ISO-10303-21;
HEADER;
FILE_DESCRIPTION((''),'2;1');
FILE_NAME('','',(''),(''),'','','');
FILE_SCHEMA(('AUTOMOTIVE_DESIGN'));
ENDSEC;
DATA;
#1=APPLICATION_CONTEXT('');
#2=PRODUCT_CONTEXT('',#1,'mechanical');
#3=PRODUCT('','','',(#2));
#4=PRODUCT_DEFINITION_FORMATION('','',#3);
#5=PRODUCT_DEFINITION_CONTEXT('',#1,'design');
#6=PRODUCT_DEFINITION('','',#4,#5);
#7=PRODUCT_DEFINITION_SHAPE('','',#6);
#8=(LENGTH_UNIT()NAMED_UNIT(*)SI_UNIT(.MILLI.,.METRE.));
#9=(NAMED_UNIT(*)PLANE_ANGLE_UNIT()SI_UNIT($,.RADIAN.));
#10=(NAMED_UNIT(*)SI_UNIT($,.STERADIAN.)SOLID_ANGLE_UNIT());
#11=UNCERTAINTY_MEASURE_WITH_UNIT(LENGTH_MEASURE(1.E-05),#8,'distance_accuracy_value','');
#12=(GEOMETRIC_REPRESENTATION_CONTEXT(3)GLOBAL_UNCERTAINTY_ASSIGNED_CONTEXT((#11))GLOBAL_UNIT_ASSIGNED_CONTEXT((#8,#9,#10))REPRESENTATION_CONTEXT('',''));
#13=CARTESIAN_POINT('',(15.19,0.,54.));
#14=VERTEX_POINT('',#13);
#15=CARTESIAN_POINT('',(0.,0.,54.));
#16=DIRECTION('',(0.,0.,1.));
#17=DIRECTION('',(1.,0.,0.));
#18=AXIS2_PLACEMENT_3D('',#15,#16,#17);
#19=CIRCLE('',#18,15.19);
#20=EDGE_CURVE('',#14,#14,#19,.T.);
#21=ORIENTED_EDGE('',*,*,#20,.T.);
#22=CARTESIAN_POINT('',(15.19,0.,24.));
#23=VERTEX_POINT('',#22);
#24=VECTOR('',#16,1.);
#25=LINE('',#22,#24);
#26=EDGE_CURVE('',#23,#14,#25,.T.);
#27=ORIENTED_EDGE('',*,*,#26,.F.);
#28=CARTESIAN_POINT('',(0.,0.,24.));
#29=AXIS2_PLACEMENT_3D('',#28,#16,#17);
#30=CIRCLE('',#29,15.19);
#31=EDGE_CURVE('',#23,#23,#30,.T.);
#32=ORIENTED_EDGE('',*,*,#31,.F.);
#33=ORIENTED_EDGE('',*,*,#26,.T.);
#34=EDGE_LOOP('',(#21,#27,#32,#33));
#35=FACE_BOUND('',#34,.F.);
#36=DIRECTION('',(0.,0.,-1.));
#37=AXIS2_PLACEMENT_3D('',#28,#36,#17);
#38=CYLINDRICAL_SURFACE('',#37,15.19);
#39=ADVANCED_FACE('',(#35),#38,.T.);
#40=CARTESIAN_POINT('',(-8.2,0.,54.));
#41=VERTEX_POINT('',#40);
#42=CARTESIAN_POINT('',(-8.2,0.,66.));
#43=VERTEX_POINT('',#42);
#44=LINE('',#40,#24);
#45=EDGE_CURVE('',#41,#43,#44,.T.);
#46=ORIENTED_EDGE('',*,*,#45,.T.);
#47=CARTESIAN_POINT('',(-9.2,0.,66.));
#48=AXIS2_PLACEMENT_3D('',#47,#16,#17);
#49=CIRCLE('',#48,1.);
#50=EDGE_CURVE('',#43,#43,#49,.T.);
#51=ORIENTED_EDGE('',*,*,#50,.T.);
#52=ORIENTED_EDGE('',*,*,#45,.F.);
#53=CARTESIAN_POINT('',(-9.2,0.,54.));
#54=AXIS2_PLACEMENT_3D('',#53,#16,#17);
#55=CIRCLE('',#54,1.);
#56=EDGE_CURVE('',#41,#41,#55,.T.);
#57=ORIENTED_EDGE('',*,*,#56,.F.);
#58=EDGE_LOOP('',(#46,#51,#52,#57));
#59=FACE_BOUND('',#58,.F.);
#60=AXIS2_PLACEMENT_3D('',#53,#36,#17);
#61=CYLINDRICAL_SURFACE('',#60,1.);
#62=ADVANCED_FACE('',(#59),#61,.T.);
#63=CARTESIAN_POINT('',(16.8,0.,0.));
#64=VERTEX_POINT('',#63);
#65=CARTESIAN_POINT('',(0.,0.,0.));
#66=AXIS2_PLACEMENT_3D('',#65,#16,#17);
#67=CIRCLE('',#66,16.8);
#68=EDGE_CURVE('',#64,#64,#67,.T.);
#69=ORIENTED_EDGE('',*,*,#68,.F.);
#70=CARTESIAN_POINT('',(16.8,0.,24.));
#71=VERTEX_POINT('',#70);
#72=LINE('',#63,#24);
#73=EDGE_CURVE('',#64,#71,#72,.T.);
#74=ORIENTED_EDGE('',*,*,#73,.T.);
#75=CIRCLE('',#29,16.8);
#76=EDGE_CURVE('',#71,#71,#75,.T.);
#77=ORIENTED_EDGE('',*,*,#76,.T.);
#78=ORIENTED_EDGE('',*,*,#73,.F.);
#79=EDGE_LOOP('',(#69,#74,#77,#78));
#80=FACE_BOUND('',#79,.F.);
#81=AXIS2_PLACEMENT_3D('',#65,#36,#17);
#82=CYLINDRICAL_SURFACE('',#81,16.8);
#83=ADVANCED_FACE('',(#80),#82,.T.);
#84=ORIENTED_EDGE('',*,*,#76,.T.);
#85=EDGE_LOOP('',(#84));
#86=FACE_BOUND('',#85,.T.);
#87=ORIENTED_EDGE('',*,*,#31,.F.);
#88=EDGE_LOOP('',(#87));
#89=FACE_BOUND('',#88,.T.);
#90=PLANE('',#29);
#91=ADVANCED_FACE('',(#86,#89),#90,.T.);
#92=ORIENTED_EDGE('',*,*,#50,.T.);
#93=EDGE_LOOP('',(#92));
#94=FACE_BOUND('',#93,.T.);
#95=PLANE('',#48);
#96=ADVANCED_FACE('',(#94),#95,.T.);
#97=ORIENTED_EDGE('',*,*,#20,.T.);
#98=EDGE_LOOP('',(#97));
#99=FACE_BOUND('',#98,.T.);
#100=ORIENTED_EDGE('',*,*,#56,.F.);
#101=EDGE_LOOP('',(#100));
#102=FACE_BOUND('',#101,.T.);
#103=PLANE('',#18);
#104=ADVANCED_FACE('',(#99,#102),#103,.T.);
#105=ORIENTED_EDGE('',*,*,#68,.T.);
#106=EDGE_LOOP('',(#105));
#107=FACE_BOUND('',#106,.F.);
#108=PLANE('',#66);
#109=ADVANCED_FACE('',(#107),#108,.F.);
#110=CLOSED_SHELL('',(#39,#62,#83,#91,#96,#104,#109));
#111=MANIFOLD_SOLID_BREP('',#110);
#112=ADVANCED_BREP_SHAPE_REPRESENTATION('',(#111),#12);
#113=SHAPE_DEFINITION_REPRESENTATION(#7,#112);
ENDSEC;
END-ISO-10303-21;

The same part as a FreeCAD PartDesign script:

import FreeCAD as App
import Part
import Sketcher

doc = App.newDocument("Part")
params = doc.addObject("Spreadsheet::Sheet", "Params")
for row, (alias, value) in enumerate([
    ("sketch1_diameter", "33.6 mm"),
    ("pad1_length", "24 mm"),
    ("sketch2_diameter", "30.38 mm"),
    ("pad2_length", "30 mm"),
    ("sketch3_diameter", "2 mm"),
    ("pad3_length", "12 mm"),
], start=1):
    params.set(f"A{row}", alias)
    params.set(f"B{row}", "=" + value)
    params.setAlias(f"B{row}", alias)

body = doc.addObject("PartDesign::Body", "Body")

# Sketch on XY plane
sketch1 = body.newObject("Sketcher::SketchObject", "Sketch")
sketch1.AttachmentSupport = (doc.getObject("XY_Plane"), [""])
sketch1.MapMode = "FlatFace"
sketch1.addGeometry(Part.Circle(App.Vector(0, 0, 0), App.Vector(0, 0, 1), 16.8), False)
sketch1.addConstraint([
    Sketcher.Constraint("Coincident", 0, 3, -1, 1),
    Sketcher.Constraint("Diameter", 0, 33.6),
])
sketch1.setExpression("Constraints[1]", "Params.sketch1_diameter")
pad1 = body.newObject("PartDesign::Pad", "Pad")
pad1.Profile = sketch1
pad1.setExpression("Length", "Params.pad1_length")

# Sketch on XY plane
sketch2 = body.newObject("Sketcher::SketchObject", "Sketch001")
sketch2.AttachmentSupport = (doc.getObject("XY_Plane"), [""])
sketch2.MapMode = "FlatFace"
sketch2.AttachmentOffset = App.Placement(App.Vector(0, 0, 24), App.Rotation())
sketch2.addGeometry(Part.Circle(App.Vector(0, 0, 0), App.Vector(0, 0, 1), 15.19), False)
sketch2.addConstraint([
    Sketcher.Constraint("Coincident", 0, 3, -1, 1),
    Sketcher.Constraint("Diameter", 0, 30.38),
])
sketch2.setExpression("Constraints[1]", "Params.sketch2_diameter")
pad2 = body.newObject("PartDesign::Pad", "Pad001")
pad2.Profile = sketch2
pad2.setExpression("Length", "Params.pad2_length")

# Sketch on XY plane
sketch3 = body.newObject("Sketcher::SketchObject", "Sketch002")
sketch3.AttachmentSupport = (doc.getObject("XY_Plane"), [""])
sketch3.MapMode = "FlatFace"
sketch3.AttachmentOffset = App.Placement(App.Vector(0, 0, 54), App.Rotation())
sketch3.addGeometry(Part.Circle(App.Vector(-9.2, 0, 0), App.Vector(0, 0, 1), 1), False)
sketch3.addConstraint([
    Sketcher.Constraint("PointOnObject", 0, 3, -1),
    Sketcher.Constraint("Diameter", 0, 2.0),
    Sketcher.Constraint("DistanceX", 0, 3, -1, 1, 9.2),
])
sketch3.setExpression("Constraints[1]", "Params.sketch3_diameter")
pad3 = body.newObject("PartDesign::Pad", "Pad002")
pad3.Profile = sketch3
pad3.setExpression("Length", "Params.pad3_length")

doc.recompute()
